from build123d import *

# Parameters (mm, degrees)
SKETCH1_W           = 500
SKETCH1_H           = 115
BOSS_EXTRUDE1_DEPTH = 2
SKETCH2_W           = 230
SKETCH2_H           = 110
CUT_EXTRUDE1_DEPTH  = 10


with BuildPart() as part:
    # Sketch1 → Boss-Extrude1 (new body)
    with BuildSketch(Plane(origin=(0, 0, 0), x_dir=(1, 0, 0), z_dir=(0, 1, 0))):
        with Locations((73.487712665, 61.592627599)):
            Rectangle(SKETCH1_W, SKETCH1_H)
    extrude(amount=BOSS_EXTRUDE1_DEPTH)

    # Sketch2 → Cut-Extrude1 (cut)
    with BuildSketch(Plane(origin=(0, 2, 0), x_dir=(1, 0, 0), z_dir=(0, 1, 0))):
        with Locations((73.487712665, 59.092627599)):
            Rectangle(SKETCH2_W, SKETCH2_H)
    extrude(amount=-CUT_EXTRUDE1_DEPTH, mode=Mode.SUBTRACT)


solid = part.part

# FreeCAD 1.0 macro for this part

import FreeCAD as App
import Part
import Sketcher
from FreeCAD import Vector
Q = App.Units.Quantity

doc = App.newDocument("Part")
params = doc.addObject("Spreadsheet::Sheet", "Params")
for row, (alias, value) in enumerate([
    ("sketch1_width", "500 mm"),
    ("sketch1_height", "115 mm"),
    ("pad1_length", "2 mm"),
    ("sketch2_width", "230 mm"),
    ("sketch2_height", "110 mm"),
    ("pocket1_length", "10 mm"),
], start=1):
    params.set(f"A{row}", alias)
    params.set(f"B{row}", "=" + value)
    params.setAlias(f"B{row}", alias)

body = doc.addObject("PartDesign::Body", "Body")

sketch1 = body.newObject("Sketcher::SketchObject", "Sketch")
sketch1.AttachmentSupport = (doc.getObject("XZ_Plane"), [""])
sketch1.MapMode = "FlatFace"
sketch1.addGeometry([
    Part.LineSegment(Vector(-176.512287, -119.092628, 0), Vector(-176.512287, -4.092628, 0)),
    Part.LineSegment(Vector(-176.512287, -4.092628, 0), Vector(323.487713, -4.092628, 0)),
    Part.LineSegment(Vector(323.487713, -4.092628, 0), Vector(323.487713, -119.092628, 0)),
    Part.LineSegment(Vector(323.487713, -119.092628, 0), Vector(-176.512287, -119.092628, 0)),
], False)
sketch1.addConstraint([
    Sketcher.Constraint("Coincident", 0, 2, 1, 1),
    Sketcher.Constraint("Coincident", 1, 2, 2, 1),
    Sketcher.Constraint("Coincident", 2, 2, 3, 1),
    Sketcher.Constraint("Coincident", 3, 2, 0, 1),
    Sketcher.Constraint("Vertical", 0),
    Sketcher.Constraint("Horizontal", 1),
    Sketcher.Constraint("Vertical", 2),
    Sketcher.Constraint("Horizontal", 3),
    Sketcher.Constraint("DistanceX", 1, 1, 1, 2, Q("500 mm")),
    Sketcher.Constraint("DistanceY", 0, 1, 0, 2, Q("115 mm")),
    Sketcher.Constraint("DistanceX", 0, 2, -1, 1, Q("176.512287 mm")),
    Sketcher.Constraint("DistanceY", 0, 2, -1, 1, Q("4.092628 mm")),
])
sketch1.setExpression("Constraints[8]", "Params.sketch1_width")
sketch1.setExpression("Constraints[9]", "Params.sketch1_height")
pad1 = body.newObject("PartDesign::Pad", "Pad")
pad1.Profile = sketch1
pad1.setExpression("Length", "Params.pad1_length")
pad1.Reversed = True

sketch2 = body.newObject("Sketcher::SketchObject", "Sketch001")
sketch2.AttachmentSupport = (doc.getObject("XZ_Plane"), [""])
sketch2.MapMode = "FlatFace"
sketch2.AttachmentOffset = App.Placement(Vector(0, 0, -2), App.Rotation())
sketch2.addGeometry([
    Part.LineSegment(Vector(-41.512287, -114.092628, 0), Vector(-41.512287, -4.092628, 0)),
    Part.LineSegment(Vector(-41.512287, -4.092628, 0), Vector(188.487713, -4.092628, 0)),
    Part.LineSegment(Vector(188.487713, -4.092628, 0), Vector(188.487713, -114.092628, 0)),
    Part.LineSegment(Vector(188.487713, -114.092628, 0), Vector(-41.512287, -114.092628, 0)),
], False)
sketch2.addConstraint([
    Sketcher.Constraint("Coincident", 0, 2, 1, 1),
    Sketcher.Constraint("Coincident", 1, 2, 2, 1),
    Sketcher.Constraint("Coincident", 2, 2, 3, 1),
    Sketcher.Constraint("Coincident", 3, 2, 0, 1),
    Sketcher.Constraint("Vertical", 0),
    Sketcher.Constraint("Horizontal", 1),
    Sketcher.Constraint("Vertical", 2),
    Sketcher.Constraint("Horizontal", 3),
    Sketcher.Constraint("DistanceX", 1, 1, 1, 2, Q("230 mm")),
    Sketcher.Constraint("DistanceY", 0, 1, 0, 2, Q("110 mm")),
    Sketcher.Constraint("DistanceX", 0, 2, -1, 1, Q("41.512287 mm")),
    Sketcher.Constraint("DistanceY", 0, 2, -1, 1, Q("4.092628 mm")),
])
sketch2.setExpression("Constraints[8]", "Params.sketch2_width")
sketch2.setExpression("Constraints[9]", "Params.sketch2_height")
pocket1 = body.newObject("PartDesign::Pocket", "Pocket")
pocket1.Profile = sketch2
pocket1.setExpression("Length", "Params.pocket1_length")
pocket1.Reversed = True

doc.recompute()
